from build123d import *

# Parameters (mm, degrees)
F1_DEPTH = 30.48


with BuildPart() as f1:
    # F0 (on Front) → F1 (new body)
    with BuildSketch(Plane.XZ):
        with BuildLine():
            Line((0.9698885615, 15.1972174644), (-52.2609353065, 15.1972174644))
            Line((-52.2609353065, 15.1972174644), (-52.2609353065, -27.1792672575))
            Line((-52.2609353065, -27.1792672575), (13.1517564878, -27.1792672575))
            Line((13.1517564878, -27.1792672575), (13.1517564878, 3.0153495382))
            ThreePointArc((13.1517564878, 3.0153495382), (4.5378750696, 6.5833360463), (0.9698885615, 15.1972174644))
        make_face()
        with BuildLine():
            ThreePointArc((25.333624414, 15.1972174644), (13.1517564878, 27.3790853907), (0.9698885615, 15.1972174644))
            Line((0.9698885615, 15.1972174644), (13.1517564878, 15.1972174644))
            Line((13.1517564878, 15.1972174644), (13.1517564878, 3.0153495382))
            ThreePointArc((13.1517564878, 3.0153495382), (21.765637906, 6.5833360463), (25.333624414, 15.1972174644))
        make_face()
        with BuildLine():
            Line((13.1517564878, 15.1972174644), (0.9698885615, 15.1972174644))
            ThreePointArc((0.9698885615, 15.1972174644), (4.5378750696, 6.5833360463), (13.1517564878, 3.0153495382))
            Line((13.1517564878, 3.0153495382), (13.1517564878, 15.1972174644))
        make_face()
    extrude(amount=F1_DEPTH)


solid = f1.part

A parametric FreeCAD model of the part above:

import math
import FreeCAD as App
import Part
import Sketcher
Q = App.Units.Quantity

doc = App.newDocument("Part")
body = doc.addObject("PartDesign::Body", "Body")

# Sketch on XZ plane
sketch1 = body.newObject("Sketcher::SketchObject", "Sketch")
sketch1.AttachmentSupport = (doc.getObject("XZ_Plane"), [""])
sketch1.MapMode = "FlatFace"
sketch1.addGeometry([
    Part.LineSegment(App.Vector(1, 15, 0), App.Vector(-52, 15, 0)),  # 0
    Part.LineSegment(App.Vector(-52, 15, 0), App.Vector(-52, -27, 0)),  # 1
    Part.LineSegment(App.Vector(-52, -27, 0), App.Vector(13, -27, 0)),  # 2
    Part.LineSegment(App.Vector(13, -27, 0), App.Vector(13, 3, 0)),  # 3
    Part.ArcOfCircle(Part.Circle(App.Vector(13, 15, 0), App.Vector(0, 0, 1), 12), math.radians(-90), math.radians(0)),  # 4
    Part.ArcOfCircle(Part.Circle(App.Vector(13, 15, 0), App.Vector(0, 0, 1), 12), math.radians(0), math.radians(180)),  # 5
], False)
sketch1.addConstraint([
    Sketcher.Constraint("Coincident", 0, 2, 1, 1),
    Sketcher.Constraint("Coincident", 1, 2, 2, 1),
    Sketcher.Constraint("Coincident", 2, 2, 3, 1),
    Sketcher.Constraint("Coincident", 3, 2, 4, 1),
    Sketcher.Constraint("Tangent", 4, 2, 5, 1),
    Sketcher.Constraint("Coincident", 5, 2, 0, 1),
    Sketcher.Constraint("Horizontal", 0),
    Sketcher.Constraint("Vertical", 1),
    Sketcher.Constraint("Horizontal", 2),
    Sketcher.Constraint("Vertical", 3),
    Sketcher.Constraint("Equal", 4, 5),
    Sketcher.Constraint("Horizontal", 5, 3, 0, 2),
    Sketcher.Constraint("Horizontal", 0, 2, 4, 2),
    Sketcher.Constraint("Vertical", 5, 3, 2, 2),
    Sketcher.Constraint("Radius", 4, 12.181868),
    Sketcher.Constraint("DistanceX", 2, 1, 2, 2, 65.412692),
    Sketcher.Constraint("DistanceY", 1, 2, 1, 1, 42.376485),
    Sketcher.Constraint("DistanceY", -1, 1, 3, 2, 3.01535),
    Sketcher.Constraint("DistanceX", -1, 1, 5, 2, 0.969889),
])
pad1 = body.newObject("PartDesign::Pad", "Pad")
pad1.Profile = sketch1
pad1.Length = Q("1.2 in")

doc.recompute()
